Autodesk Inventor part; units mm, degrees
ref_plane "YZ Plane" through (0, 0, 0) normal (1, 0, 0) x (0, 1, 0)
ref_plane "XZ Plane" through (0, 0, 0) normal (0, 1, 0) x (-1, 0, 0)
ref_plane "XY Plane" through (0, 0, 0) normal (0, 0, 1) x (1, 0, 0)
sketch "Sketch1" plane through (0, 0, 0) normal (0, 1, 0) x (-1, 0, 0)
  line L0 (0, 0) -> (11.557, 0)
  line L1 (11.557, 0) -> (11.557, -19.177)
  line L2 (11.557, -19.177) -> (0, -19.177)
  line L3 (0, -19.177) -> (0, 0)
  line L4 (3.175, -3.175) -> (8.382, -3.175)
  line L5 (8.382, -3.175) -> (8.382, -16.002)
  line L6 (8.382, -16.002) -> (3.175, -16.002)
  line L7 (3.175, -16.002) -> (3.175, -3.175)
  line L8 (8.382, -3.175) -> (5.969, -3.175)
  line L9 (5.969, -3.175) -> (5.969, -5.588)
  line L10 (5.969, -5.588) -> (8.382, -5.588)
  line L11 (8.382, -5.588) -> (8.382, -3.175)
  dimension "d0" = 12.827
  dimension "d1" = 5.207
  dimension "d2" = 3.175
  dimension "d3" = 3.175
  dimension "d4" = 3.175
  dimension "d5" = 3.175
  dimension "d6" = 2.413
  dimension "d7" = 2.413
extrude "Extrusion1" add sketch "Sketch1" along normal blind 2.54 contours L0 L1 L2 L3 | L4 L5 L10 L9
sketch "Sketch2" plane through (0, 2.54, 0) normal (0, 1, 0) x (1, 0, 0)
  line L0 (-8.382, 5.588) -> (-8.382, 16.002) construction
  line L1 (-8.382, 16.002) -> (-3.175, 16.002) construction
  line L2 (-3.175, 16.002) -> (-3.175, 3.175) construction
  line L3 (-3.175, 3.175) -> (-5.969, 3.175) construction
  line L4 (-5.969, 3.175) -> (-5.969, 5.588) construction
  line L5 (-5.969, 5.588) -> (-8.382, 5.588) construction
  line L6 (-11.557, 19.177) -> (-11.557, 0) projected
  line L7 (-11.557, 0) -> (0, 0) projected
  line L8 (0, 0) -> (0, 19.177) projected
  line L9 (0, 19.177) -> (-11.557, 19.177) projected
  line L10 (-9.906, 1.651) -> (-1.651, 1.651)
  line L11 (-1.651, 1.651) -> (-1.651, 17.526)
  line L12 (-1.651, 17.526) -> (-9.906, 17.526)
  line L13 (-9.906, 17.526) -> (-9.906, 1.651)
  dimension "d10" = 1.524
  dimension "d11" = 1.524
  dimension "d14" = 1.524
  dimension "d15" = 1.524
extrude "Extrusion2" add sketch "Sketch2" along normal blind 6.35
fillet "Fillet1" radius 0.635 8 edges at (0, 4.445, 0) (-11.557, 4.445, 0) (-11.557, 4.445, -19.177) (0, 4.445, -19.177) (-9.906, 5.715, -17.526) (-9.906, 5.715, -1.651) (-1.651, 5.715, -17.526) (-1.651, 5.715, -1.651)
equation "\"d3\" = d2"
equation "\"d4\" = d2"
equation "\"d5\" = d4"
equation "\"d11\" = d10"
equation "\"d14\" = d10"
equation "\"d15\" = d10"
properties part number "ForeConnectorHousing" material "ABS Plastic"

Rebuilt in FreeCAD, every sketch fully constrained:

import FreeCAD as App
import Part
import Sketcher
Q = App.Units.Quantity


def edges_at(feature, points):
    """Names of the edges that pass closest to the given points."""
    edges = feature.Shape.Edges
    near = lambda p: min(range(len(edges)), key=lambda i: edges[i].distToShape(Part.Vertex(*p))[0])
    return sorted({f"Edge{near(p) + 1}" for p in points})


def add_polygon(sketch, points):
    """Adds a closed chain of lines whose ends are joined by coincident constraints."""
    first, n = sketch.GeometryCount, len(points)
    for a, b in zip(points, points[1:] + points[:1]):
        sketch.addGeometry(Part.LineSegment(App.Vector(*a, 0), App.Vector(*b, 0)), False)
    for i in range(n):
        sketch.addConstraint(Sketcher.Constraint("Coincident", first + i, 2, first + (i + 1) % n, 1))

doc = App.newDocument("Part")
params = doc.addObject("Spreadsheet::Sheet", "Params")
for row, (alias, value) in enumerate([
    ("sketch1_width", "0.095 in"),
    ("sketch1_width2", "0.205 in"),
    ("sketch1_height", "0.505 in"),
    ("pad1_length", "0.1 in"),
    ("sketch2_width", "0.455 in"),
    ("sketch2_width2", "0.325 in"),
    ("sketch2_height", "0.755 in"),
    ("sketch2_height2", "0.625 in"),
    ("pad2_length", "0.25 in"),
    ("fillet_radius", "0.025 in"),
], start=1):
    params.set(f"A{row}", alias)
    params.set(f"B{row}", "=" + value)
    params.setAlias(f"B{row}", alias)

body = doc.addObject("PartDesign::Body", "Body")

# Sketch on XZ plane
sketch1 = body.newObject("Sketcher::SketchObject", "Sketch")
sketch1.AttachmentSupport = (doc.getObject("XZ_Plane"), [""])
sketch1.MapMode = "FlatFace"
add_polygon(sketch1, [(-11.557, 0), (0, 0), (0, -19.177), (-11.557, -19.177)])  # lines 0-3
add_polygon(sketch1, [(-3.175, -16.002), (-3.175, -3.175), (-5.969, -3.175), (-5.969, -5.588), (-8.382, -5.588), (-8.382, -16.002)])  # lines 4-9
sketch1.addConstraint([
    Sketcher.Constraint("Horizontal", 0),
    Sketcher.Constraint("Vertical", 1),
    Sketcher.Constraint("Horizontal", 2),
    Sketcher.Constraint("Vertical", 3),
    Sketcher.Constraint("Vertical", 4),
    Sketcher.Constraint("Horizontal", 5),
    Sketcher.Constraint("Vertical", 6),
    Sketcher.Constraint("Horizontal", 7),
    Sketcher.Constraint("Vertical", 8),
    Sketcher.Constraint("Horizontal", 9),
    Sketcher.Constraint("Coincident", 0, 2, -1, 1),
    Sketcher.Constraint("Equal", 7, 6),
    Sketcher.Constraint("DistanceX", 7, 2, 7, 1, Q("0.095 in")),
    Sketcher.Constraint("DistanceX", 9, 1, 9, 2, Q("0.205 in")),
    Sketcher.Constraint("DistanceY", 4, 1, 4, 2, Q("0.505 in")),
    Sketcher.Constraint("DistanceX", 4, 2, -1, 1, Q("0.125 in")),
    Sketcher.Constraint("DistanceY", 4, 2, -1, 1, Q("0.125 in")),
    Sketcher.Constraint("DistanceX", 3, 2, 7, 2, Q("0.125 in")),
    Sketcher.Constraint("DistanceY", 2, 2, 8, 2, Q("0.125 in")),
])
sketch1.setExpression("Constraints[22]", "Params.sketch1_width")
sketch1.setExpression("Constraints[23]", "Params.sketch1_width2")
sketch1.setExpression("Constraints[24]", "Params.sketch1_height")
pad1 = body.newObject("PartDesign::Pad", "Pad")
pad1.Profile = sketch1
pad1.setExpression("Length", "Params.pad1_length")
pad1.Reversed = True

# Sketch on XZ plane
sketch2 = body.newObject("Sketcher::SketchObject", "Sketch001")
sketch2.AttachmentSupport = (doc.getObject("XZ_Plane"), [""])
sketch2.MapMode = "FlatFace"
sketch2.AttachmentOffset = App.Placement(App.Vector(0, 0, -0.1 * 25.4), App.Rotation())
add_polygon(sketch2, [(0, -19.177), (-11.557, -19.177), (-11.557, 0), (0, 0)])  # lines 0-3
add_polygon(sketch2, [(-1.651, -1.651), (-9.906, -1.651), (-9.906, -17.526), (-1.651, -17.526)])  # lines 4-7
sketch2.addConstraint([
    Sketcher.Constraint("Horizontal", 0),
    Sketcher.Constraint("Vertical", 1),
    Sketcher.Constraint("Horizontal", 2),
    Sketcher.Constraint("Vertical", 3),
    Sketcher.Constraint("Horizontal", 4),
    Sketcher.Constraint("Vertical", 5),
    Sketcher.Constraint("Horizontal", 6),
    Sketcher.Constraint("Vertical", 7),
    Sketcher.Constraint("Coincident", 2, 2, -1, 1),
    Sketcher.Constraint("DistanceX", 0, 2, 0, 1, Q("0.455 in")),
    Sketcher.Constraint("DistanceX", 4, 2, 4, 1, Q("0.325 in")),
    Sketcher.Constraint("DistanceY", 1, 1, 1, 2, Q("0.755 in")),
    Sketcher.Constraint("DistanceY", 5, 2, 5, 1, Q("0.625 in")),
    Sketcher.Constraint("DistanceX", 4, 2, -1, 1, Q("0.39 in")),
    Sketcher.Constraint("DistanceY", 5, 2, -1, 1, Q("0.69 in")),
])
sketch2.setExpression("Constraints[17]", "Params.sketch2_width")
sketch2.setExpression("Constraints[18]", "Params.sketch2_width2")
sketch2.setExpression("Constraints[19]", "Params.sketch2_height")
sketch2.setExpression("Constraints[20]", "Params.sketch2_height2")
pad2 = body.newObject("PartDesign::Pad", "Pad001")
pad2.Profile = sketch2
pad2.setExpression("Length", "Params.pad2_length")
pad2.Reversed = True
doc.recompute()

fillet = body.newObject("PartDesign::Fillet", "Fillet")
fillet.Base = (pad2, edges_at(pad2, [
    (0, 4.445, 0),
    (-11.557, 4.445, 0),
    (-11.557, 4.445, -19.177),
    (0, 4.445, -19.177),
    (-9.906, 5.715, -17.526),
    (-9.906, 5.715, -1.651),
    (-1.651, 5.715, -17.526),
    (-1.651, 5.715, -1.651),
]))
fillet.setExpression("Radius", "Params.fillet_radius")

doc.recompute()
